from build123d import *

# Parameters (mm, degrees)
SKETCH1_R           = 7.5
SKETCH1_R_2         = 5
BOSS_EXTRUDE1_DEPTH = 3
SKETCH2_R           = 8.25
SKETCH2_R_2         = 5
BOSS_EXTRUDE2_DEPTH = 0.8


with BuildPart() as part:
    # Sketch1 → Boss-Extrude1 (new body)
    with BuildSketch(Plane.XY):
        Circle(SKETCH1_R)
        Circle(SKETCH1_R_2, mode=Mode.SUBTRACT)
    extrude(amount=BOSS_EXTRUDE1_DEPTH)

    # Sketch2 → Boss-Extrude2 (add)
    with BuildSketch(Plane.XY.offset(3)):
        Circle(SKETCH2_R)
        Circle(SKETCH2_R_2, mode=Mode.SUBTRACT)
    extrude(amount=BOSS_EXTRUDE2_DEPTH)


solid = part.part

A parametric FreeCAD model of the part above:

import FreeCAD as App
import Part
import Sketcher

V = App.Vector
Q = App.Units.Quantity

doc = App.newDocument("Part")
body = doc.addObject("PartDesign::Body", "Body")

# Sketch on XY plane
sketch1 = body.newObject("Sketcher::SketchObject", "Sketch")
sketch1.AttachmentSupport = (doc.getObject("XY_Plane"), [""])
sketch1.MapMode = "FlatFace"
sketch1.addGeometry(Part.Circle(V(0, 0, 0), V(0, 0, 1), 8), False)
sketch1.addGeometry(Part.Circle(V(0, 0, 0), V(0, 0, 1), 5), False)
sketch1.addConstraint(Sketcher.Constraint("Coincident", 0, 3, -1, 1))
sketch1.addConstraint(Sketcher.Constraint("Coincident", 1, 3, -1, 1))
sketch1.addConstraint(Sketcher.Constraint("Diameter", 0, Q("15 mm")))
sketch1.addConstraint(Sketcher.Constraint("Diameter", 1, Q("10 mm")))
pad1 = body.newObject("PartDesign::Pad", "Pad")
pad1.Profile = sketch1
pad1.Length = 3

# Sketch on XY plane
sketch2 = body.newObject("Sketcher::SketchObject", "Sketch001")
sketch2.AttachmentSupport = (doc.getObject("XY_Plane"), [""])
sketch2.MapMode = "FlatFace"
sketch2.AttachmentOffset = App.Placement(V(0, 0, 3), App.Rotation())
sketch2.addGeometry(Part.Circle(V(0, 0, 0), V(0, 0, 1), 8), False)
sketch2.addGeometry(Part.Circle(V(0, 0, 0), V(0, 0, 1), 5), False)
sketch2.addConstraint(Sketcher.Constraint("Coincident", 0, 3, -1, 1))
sketch2.addConstraint(Sketcher.Constraint("Coincident", 1, 3, -1, 1))
sketch2.addConstraint(Sketcher.Constraint("Diameter", 1, Q("10 mm")))
sketch2.addConstraint(Sketcher.Constraint("Diameter", 0, Q("16.5 mm")))
pad2 = body.newObject("PartDesign::Pad", "Pad001")
pad2.Profile = sketch2
pad2.Length = 0.8

doc.recompute()
